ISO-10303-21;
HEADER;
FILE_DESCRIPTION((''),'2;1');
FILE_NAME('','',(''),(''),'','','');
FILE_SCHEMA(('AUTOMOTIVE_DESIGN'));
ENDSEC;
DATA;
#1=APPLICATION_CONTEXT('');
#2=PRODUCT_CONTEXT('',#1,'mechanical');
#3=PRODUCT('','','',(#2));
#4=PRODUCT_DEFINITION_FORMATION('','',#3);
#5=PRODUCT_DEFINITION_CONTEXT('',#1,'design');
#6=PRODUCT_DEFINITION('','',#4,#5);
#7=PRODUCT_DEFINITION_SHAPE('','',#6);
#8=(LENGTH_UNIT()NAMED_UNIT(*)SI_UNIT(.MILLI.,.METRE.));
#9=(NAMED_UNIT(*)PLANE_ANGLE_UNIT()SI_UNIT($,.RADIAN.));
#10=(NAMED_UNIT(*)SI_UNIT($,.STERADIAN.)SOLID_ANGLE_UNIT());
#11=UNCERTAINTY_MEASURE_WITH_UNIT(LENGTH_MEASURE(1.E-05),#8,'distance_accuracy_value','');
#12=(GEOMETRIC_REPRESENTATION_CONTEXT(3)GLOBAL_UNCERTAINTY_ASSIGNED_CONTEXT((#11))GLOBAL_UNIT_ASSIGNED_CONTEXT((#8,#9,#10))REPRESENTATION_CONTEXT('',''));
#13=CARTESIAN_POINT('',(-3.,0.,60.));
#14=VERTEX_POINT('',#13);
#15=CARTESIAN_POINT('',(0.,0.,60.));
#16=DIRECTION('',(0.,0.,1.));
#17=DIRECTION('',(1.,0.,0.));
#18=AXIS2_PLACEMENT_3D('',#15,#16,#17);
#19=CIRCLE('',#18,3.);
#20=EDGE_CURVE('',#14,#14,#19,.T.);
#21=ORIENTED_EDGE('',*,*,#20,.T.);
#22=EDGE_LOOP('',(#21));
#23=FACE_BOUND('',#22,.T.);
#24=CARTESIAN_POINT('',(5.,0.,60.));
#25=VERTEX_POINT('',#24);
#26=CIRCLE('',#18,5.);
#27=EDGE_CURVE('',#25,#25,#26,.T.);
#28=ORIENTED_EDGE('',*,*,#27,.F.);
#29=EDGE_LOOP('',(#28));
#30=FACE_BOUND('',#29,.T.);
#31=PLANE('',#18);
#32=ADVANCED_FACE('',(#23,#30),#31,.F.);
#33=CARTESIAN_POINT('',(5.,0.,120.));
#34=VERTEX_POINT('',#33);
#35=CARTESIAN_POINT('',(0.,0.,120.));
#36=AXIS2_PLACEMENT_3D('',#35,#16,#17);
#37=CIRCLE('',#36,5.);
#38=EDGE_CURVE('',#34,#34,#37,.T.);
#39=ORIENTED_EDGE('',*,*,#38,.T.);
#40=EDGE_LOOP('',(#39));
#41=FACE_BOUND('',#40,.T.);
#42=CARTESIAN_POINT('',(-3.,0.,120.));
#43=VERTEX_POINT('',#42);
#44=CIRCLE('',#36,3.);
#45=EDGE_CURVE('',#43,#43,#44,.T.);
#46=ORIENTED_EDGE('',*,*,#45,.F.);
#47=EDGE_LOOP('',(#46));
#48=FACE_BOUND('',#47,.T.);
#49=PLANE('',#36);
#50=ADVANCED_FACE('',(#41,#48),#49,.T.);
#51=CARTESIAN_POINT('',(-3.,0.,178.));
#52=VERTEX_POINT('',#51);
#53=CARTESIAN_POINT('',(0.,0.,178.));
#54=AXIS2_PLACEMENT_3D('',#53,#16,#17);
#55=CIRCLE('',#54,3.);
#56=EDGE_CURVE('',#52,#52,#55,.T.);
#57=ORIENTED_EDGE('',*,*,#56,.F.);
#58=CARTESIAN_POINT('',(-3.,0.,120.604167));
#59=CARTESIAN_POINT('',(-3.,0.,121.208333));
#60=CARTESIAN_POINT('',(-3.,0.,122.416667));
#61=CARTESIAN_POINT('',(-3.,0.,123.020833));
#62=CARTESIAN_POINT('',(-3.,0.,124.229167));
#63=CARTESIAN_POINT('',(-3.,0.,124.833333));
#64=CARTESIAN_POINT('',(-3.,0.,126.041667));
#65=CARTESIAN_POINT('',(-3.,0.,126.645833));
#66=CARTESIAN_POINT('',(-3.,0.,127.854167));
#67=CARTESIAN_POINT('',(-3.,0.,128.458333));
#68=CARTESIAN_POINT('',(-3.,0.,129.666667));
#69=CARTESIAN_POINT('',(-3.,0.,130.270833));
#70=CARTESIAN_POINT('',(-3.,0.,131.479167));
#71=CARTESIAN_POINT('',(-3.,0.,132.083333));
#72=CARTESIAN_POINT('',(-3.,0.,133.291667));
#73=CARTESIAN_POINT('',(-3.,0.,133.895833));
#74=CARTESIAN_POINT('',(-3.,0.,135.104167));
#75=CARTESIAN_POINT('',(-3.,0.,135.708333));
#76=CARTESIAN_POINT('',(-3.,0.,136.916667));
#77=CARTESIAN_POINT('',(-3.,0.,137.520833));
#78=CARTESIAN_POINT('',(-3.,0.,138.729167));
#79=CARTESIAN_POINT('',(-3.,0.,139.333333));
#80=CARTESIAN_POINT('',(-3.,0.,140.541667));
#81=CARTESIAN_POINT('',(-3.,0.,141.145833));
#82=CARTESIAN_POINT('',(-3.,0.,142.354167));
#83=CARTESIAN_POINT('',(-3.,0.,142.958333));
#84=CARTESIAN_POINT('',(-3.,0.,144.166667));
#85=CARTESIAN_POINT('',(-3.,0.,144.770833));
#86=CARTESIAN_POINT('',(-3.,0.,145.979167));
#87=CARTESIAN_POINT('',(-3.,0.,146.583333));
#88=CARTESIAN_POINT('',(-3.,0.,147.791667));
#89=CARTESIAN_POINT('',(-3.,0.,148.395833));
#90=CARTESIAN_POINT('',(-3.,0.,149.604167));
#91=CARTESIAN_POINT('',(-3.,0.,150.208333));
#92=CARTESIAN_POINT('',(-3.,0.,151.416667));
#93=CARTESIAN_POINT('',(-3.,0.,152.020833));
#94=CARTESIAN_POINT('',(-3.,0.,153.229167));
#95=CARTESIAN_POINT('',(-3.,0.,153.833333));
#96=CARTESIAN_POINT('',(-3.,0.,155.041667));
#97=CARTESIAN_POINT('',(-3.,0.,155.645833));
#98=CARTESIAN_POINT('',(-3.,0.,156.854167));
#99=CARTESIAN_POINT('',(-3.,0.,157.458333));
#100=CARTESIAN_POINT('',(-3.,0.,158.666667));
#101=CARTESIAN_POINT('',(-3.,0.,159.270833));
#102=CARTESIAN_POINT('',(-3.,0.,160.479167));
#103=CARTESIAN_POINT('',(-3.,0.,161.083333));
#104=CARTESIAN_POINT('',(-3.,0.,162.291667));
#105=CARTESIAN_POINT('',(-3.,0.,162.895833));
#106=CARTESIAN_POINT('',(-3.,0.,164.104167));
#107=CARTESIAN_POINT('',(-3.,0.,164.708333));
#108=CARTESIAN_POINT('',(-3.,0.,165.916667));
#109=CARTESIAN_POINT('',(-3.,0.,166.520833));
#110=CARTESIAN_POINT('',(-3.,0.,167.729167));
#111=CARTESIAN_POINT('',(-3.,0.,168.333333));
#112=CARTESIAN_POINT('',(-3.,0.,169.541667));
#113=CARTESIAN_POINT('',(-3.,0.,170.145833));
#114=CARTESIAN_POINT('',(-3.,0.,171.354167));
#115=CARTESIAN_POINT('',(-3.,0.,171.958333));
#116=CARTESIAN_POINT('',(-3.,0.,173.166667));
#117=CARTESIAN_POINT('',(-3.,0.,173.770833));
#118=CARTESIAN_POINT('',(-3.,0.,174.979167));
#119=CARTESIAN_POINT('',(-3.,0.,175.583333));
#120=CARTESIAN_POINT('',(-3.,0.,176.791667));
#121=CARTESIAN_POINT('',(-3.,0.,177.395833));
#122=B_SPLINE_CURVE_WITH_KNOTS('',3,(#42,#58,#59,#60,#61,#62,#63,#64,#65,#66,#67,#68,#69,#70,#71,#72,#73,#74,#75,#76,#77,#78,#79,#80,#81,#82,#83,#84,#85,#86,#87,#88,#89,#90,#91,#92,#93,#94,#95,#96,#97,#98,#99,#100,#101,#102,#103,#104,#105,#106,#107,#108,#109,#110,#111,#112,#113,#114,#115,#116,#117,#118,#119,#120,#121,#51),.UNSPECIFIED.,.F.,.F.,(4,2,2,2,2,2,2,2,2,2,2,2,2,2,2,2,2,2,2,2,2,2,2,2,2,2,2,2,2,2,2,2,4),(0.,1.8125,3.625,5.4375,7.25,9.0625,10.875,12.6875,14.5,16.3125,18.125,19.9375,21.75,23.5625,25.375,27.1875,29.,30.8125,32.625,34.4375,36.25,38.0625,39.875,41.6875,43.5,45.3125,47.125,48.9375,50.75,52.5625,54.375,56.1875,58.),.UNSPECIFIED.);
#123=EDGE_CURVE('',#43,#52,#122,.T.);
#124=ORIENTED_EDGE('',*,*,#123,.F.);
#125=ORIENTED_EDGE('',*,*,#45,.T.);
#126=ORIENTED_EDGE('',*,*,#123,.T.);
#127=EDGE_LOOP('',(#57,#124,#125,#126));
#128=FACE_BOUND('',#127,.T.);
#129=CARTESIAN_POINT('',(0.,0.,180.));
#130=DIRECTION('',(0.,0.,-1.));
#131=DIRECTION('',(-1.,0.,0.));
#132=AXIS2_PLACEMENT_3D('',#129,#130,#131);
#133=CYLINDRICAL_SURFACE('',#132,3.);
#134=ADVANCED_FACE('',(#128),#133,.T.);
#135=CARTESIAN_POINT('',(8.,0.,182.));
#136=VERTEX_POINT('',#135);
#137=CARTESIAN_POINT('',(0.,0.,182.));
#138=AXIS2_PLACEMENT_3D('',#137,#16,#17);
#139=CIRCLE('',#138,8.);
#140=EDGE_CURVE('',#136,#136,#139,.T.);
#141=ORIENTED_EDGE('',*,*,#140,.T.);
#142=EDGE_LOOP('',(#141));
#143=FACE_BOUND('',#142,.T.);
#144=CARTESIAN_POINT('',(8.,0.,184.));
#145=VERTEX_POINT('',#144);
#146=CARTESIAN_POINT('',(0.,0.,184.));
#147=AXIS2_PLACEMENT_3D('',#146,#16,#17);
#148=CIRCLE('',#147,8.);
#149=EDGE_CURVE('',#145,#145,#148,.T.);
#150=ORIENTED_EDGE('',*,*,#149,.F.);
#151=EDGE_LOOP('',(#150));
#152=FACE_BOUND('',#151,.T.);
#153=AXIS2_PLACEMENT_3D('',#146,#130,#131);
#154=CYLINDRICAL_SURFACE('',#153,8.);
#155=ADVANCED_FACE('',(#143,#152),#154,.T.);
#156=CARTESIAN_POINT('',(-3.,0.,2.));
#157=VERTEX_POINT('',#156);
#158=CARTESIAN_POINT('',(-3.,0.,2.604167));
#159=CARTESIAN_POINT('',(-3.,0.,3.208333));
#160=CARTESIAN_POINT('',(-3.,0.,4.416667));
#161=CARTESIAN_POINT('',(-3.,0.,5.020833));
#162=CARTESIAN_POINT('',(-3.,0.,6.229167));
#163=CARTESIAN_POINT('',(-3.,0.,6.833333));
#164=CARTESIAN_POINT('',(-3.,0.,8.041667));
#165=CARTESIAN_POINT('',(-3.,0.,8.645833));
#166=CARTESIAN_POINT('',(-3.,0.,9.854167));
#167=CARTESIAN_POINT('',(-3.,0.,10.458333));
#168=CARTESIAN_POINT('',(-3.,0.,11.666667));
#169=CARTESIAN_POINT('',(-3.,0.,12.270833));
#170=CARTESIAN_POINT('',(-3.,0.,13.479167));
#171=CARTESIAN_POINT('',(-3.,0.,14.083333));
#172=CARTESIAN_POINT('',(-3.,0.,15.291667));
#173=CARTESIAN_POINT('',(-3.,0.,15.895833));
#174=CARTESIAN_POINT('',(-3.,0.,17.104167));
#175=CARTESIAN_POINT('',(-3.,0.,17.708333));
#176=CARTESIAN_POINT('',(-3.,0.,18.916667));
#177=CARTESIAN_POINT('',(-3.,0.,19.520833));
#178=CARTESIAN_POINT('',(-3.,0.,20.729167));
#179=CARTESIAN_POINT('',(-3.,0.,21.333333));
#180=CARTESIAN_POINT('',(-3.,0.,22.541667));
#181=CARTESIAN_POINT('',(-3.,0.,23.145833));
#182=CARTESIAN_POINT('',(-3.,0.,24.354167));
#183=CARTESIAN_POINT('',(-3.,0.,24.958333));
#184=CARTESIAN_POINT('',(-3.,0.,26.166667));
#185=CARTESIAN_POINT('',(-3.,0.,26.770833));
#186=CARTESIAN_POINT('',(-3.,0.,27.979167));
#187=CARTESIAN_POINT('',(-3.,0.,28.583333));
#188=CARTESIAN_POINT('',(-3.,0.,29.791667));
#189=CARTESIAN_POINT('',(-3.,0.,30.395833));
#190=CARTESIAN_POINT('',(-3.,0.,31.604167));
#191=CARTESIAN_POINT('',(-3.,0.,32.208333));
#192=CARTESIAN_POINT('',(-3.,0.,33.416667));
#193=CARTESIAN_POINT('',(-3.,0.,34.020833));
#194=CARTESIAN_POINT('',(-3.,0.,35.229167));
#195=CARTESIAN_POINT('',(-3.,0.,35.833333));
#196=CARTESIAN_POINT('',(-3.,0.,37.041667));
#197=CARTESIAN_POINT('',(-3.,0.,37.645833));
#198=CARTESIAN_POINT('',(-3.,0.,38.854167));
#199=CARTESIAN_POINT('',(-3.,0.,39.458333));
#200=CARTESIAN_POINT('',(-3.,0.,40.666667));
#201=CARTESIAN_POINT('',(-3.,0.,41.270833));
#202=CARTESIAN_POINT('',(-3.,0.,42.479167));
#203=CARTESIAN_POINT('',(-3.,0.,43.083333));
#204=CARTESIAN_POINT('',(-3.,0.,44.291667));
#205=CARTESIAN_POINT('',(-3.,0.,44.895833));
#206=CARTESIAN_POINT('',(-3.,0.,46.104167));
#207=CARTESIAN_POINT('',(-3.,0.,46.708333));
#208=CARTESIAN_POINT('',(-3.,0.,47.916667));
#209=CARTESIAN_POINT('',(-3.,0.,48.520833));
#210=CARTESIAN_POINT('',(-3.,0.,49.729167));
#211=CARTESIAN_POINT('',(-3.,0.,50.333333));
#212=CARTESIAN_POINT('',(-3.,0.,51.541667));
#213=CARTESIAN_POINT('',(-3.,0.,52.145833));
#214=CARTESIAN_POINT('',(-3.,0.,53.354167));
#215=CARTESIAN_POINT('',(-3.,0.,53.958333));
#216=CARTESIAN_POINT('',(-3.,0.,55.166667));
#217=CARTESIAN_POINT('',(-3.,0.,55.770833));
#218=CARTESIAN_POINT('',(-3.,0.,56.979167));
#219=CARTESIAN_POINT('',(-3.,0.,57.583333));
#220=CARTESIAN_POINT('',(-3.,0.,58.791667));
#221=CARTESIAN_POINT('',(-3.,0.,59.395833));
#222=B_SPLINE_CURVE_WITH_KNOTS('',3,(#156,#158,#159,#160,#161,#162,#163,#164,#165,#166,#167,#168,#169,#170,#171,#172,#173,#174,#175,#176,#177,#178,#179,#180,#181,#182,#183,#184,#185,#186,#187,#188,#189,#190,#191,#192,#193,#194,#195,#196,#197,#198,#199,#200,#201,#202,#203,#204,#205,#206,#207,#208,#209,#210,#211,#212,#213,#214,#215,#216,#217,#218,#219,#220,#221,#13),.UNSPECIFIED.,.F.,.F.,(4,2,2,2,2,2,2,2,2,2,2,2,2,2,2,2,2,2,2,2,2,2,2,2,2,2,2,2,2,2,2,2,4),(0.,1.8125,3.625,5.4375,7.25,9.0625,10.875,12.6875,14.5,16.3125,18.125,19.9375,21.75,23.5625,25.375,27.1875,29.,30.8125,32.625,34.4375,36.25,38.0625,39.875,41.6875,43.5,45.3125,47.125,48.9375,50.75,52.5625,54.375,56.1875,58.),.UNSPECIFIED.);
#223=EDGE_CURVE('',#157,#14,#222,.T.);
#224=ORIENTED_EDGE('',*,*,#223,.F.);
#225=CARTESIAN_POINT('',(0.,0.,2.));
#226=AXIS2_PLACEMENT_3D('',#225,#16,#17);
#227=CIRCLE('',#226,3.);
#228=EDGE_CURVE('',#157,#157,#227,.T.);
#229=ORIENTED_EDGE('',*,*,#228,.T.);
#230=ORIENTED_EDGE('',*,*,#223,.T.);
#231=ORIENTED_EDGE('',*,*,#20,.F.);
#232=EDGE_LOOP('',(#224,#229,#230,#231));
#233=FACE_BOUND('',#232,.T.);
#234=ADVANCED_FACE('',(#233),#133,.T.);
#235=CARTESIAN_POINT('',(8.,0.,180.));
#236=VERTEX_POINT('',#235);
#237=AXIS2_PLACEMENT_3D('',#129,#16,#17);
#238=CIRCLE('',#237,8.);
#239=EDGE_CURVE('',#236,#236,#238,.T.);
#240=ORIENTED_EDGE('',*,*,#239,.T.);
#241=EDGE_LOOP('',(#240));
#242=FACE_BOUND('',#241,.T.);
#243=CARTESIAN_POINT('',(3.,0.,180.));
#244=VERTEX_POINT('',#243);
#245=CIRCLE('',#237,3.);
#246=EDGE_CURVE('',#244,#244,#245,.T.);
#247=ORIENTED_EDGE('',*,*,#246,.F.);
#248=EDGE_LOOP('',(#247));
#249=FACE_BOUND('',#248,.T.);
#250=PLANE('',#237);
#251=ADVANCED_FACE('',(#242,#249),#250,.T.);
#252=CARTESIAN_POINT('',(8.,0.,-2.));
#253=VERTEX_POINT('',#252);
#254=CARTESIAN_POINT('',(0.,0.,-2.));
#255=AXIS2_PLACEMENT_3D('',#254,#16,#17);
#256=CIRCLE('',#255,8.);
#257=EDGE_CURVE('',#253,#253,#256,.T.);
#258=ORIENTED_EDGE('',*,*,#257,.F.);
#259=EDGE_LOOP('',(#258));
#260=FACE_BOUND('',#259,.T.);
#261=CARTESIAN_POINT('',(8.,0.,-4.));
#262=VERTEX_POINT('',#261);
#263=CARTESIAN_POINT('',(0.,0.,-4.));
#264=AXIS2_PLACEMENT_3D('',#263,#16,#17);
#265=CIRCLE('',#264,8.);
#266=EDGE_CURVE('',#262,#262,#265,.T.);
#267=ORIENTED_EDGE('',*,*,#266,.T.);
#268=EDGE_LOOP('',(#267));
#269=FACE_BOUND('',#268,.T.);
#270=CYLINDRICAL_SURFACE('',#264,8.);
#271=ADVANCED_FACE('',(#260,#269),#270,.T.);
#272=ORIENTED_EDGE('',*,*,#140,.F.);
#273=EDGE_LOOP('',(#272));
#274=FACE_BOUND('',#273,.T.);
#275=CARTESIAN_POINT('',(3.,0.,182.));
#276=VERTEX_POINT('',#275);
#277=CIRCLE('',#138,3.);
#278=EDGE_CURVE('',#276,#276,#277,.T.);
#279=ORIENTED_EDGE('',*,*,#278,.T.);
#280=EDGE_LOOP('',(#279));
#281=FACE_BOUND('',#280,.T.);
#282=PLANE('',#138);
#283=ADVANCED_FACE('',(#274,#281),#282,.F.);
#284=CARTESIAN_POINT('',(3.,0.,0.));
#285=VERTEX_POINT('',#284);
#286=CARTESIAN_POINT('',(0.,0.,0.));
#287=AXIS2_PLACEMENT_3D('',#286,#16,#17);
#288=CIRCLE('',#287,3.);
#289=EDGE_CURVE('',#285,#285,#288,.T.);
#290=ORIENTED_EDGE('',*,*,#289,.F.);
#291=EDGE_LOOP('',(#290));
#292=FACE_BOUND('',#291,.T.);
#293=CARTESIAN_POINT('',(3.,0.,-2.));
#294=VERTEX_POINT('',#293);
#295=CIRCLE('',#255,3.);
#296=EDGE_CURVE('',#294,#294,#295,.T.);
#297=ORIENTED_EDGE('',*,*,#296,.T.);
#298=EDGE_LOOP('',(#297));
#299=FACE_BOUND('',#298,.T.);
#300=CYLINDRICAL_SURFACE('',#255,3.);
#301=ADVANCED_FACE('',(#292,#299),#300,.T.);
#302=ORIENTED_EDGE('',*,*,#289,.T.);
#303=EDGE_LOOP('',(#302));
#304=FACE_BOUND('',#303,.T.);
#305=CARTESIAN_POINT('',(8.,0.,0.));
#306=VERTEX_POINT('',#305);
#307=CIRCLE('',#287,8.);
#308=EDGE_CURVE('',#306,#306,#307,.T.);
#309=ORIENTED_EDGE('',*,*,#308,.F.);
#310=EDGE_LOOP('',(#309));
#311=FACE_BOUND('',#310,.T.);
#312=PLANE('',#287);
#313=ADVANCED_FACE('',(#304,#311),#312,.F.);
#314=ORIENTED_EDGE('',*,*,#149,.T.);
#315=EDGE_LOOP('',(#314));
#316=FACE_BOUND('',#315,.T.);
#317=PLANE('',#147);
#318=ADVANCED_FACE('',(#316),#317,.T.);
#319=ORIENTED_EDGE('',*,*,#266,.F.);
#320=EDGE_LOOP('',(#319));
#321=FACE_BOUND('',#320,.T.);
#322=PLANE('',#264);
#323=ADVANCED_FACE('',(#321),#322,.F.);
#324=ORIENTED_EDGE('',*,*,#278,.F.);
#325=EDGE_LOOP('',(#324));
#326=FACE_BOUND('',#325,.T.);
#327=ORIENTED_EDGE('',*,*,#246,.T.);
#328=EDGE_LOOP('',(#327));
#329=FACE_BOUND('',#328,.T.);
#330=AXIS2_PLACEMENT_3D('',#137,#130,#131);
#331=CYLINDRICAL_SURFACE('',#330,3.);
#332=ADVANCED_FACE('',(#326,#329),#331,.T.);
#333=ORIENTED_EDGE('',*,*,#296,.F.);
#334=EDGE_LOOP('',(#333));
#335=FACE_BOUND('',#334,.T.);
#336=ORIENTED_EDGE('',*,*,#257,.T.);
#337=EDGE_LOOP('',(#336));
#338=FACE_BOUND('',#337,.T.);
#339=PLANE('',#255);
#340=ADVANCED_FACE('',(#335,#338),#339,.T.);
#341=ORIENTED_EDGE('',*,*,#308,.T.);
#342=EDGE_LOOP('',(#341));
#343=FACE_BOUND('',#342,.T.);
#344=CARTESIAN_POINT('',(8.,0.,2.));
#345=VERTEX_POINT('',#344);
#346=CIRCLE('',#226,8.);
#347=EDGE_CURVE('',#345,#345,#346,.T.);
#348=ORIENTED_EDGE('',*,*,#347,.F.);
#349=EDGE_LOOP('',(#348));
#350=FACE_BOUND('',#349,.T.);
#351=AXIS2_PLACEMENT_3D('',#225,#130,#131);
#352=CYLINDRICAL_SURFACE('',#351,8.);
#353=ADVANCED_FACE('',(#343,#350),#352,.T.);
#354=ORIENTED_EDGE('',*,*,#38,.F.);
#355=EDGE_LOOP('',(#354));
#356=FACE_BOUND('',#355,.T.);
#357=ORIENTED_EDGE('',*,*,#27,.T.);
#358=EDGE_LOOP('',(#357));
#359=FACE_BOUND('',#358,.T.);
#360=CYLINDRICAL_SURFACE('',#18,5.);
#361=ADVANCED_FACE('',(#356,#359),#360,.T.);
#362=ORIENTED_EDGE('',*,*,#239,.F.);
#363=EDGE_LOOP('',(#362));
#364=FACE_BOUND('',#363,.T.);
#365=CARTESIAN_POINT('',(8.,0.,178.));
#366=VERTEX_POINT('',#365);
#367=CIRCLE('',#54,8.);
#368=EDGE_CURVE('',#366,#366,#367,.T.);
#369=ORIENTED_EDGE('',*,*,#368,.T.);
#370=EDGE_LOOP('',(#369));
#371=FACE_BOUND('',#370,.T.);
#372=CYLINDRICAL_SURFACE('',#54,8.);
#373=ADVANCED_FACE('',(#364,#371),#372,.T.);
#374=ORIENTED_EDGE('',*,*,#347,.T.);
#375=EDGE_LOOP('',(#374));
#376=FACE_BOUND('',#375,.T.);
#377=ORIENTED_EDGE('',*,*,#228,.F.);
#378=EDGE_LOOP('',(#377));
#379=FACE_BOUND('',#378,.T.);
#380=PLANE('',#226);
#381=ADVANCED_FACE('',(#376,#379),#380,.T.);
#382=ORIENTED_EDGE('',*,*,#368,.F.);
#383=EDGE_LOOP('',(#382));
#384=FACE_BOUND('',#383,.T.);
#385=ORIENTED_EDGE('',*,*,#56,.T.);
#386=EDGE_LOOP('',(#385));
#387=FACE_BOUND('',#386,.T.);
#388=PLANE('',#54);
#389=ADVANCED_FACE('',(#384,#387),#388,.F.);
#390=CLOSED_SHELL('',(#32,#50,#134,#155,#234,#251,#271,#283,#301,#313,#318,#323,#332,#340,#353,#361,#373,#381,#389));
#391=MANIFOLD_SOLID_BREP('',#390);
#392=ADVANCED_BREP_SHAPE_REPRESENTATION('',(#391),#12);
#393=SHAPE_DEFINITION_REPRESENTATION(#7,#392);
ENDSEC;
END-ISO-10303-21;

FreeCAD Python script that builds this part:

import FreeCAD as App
import Part
import Sketcher

doc = App.newDocument("Part")
body = doc.addObject("PartDesign::Body", "Body")

sketch1 = body.newObject("Sketcher::SketchObject", "Sketch")
sketch1.AttachmentSupport = (doc.getObject("XY_Plane"), [""])
sketch1.MapMode = "FlatFace"
sketch1.addGeometry(Part.Circle(App.Vector(0, 0, 0), App.Vector(0, 0, 1), 3), False)
sketch1.addConstraint(Sketcher.Constraint("Coincident", 0, 3, -1, 1))
sketch1.addConstraint(Sketcher.Constraint("Diameter", 0, 6.0))
pad1 = body.newObject("PartDesign::Pad", "Pad")
pad1.Profile = sketch1
pad1.Length = 180

sketch2 = body.newObject("Sketcher::SketchObject", "Sketch001")
sketch2.AttachmentSupport = (doc.getObject("XY_Plane"), [""])
sketch2.MapMode = "FlatFace"
sketch2.AttachmentOffset = App.Placement(App.Vector(0, 0, 180), App.Rotation())
sketch2.addGeometry(Part.Circle(App.Vector(0, 0, 0), App.Vector(0, 0, 1), 8), False)
sketch2.addConstraint(Sketcher.Constraint("Coincident", 0, 3, -1, 1))
sketch2.addConstraint(Sketcher.Constraint("Diameter", 0, 16.0))
pad2 = body.newObject("PartDesign::Pad", "Pad001")
pad2.Profile = sketch2
pad2.Length = 2
pad2.Reversed = True

sketch3 = body.newObject("Sketcher::SketchObject", "Sketch002")
sketch3.AttachmentSupport = (doc.getObject("XY_Plane"), [""])
sketch3.MapMode = "FlatFace"
sketch3.AttachmentOffset = App.Placement(App.Vector(0, 0, 2), App.Rotation())
sketch3.addGeometry(Part.Circle(App.Vector(0, 0, 0), App.Vector(0, 0, 1), 8), False)
sketch3.addConstraint(Sketcher.Constraint("Coincident", 0, 3, -1, 1))
sketch3.addConstraint(Sketcher.Constraint("Diameter", 0, 16.0))
pad3 = body.newObject("PartDesign::Pad", "Pad002")
pad3.Profile = sketch3
pad3.Length = 2
pad3.Reversed = True

sketch4 = body.newObject("Sketcher::SketchObject", "Sketch003")
sketch4.AttachmentSupport = (doc.getObject("XY_Plane"), [""])
sketch4.MapMode = "FlatFace"
sketch4.AttachmentOffset = App.Placement(App.Vector(0, 0, -2), App.Rotation())
sketch4.addGeometry(Part.Circle(App.Vector(0, 0, 0), App.Vector(0, 0, 1), 3), False)
sketch4.addConstraint(Sketcher.Constraint("Coincident", 0, 3, -1, 1))
sketch4.addConstraint(Sketcher.Constraint("Diameter", 0, 6.0))
pad4 = body.newObject("PartDesign::Pad", "Pad003")
pad4.Profile = sketch4
pad4.Length = 2

sketch5 = body.newObject("Sketcher::SketchObject", "Sketch004")
sketch5.AttachmentSupport = (doc.getObject("XY_Plane"), [""])
sketch5.MapMode = "FlatFace"
sketch5.AttachmentOffset = App.Placement(App.Vector(0, 0, 180), App.Rotation())
sketch5.addGeometry(Part.Circle(App.Vector(0, 0, 0), App.Vector(0, 0, 1), 3), False)
sketch5.addConstraint(Sketcher.Constraint("Coincident", 0, 3, -1, 1))
sketch5.addConstraint(Sketcher.Constraint("Diameter", 0, 6.0))
pad5 = body.newObject("PartDesign::Pad", "Pad004")
pad5.Profile = sketch5
pad5.Length = 2

sketch6 = body.newObject("Sketcher::SketchObject", "Sketch005")
sketch6.AttachmentSupport = (doc.getObject("XY_Plane"), [""])
sketch6.MapMode = "FlatFace"
sketch6.AttachmentOffset = App.Placement(App.Vector(0, 0, 184), App.Rotation())
sketch6.addGeometry(Part.Circle(App.Vector(0, 0, 0), App.Vector(0, 0, 1), 8), False)
sketch6.addConstraint(Sketcher.Constraint("Coincident", 0, 3, -1, 1))
sketch6.addConstraint(Sketcher.Constraint("Diameter", 0, 16.0))
pad6 = body.newObject("PartDesign::Pad", "Pad005")
pad6.Profile = sketch6
pad6.Length = 2
pad6.Reversed = True

sketch7 = body.newObject("Sketcher::SketchObject", "Sketch006")
sketch7.AttachmentSupport = (doc.getObject("XY_Plane"), [""])
sketch7.MapMode = "FlatFace"
sketch7.AttachmentOffset = App.Placement(App.Vector(0, 0, -2), App.Rotation())
sketch7.addGeometry(Part.Circle(App.Vector(0, 0, 0), App.Vector(0, 0, 1), 8), False)
sketch7.addConstraint(Sketcher.Constraint("Coincident", 0, 3, -1, 1))
sketch7.addConstraint(Sketcher.Constraint("Diameter", 0, 16.0))
pad7 = body.newObject("PartDesign::Pad", "Pad006")
pad7.Profile = sketch7
pad7.Length = 2
pad7.Reversed = True

sketch8 = body.newObject("Sketcher::SketchObject", "Sketch007")
sketch8.AttachmentSupport = (doc.getObject("XY_Plane"), [""])
sketch8.MapMode = "FlatFace"
sketch8.AttachmentOffset = App.Placement(App.Vector(0, 0, 120), App.Rotation())
sketch8.addGeometry(Part.Circle(App.Vector(0, 0, 0), App.Vector(0, 0, 1), 5), False)
sketch8.addConstraint(Sketcher.Constraint("Coincident", 0, 3, -1, 1))
sketch8.addConstraint(Sketcher.Constraint("Diameter", 0, 10.0))
pad8 = body.newObject("PartDesign::Pad", "Pad007")
pad8.Profile = sketch8
pad8.Length = 60
pad8.Reversed = True

doc.recompute()
